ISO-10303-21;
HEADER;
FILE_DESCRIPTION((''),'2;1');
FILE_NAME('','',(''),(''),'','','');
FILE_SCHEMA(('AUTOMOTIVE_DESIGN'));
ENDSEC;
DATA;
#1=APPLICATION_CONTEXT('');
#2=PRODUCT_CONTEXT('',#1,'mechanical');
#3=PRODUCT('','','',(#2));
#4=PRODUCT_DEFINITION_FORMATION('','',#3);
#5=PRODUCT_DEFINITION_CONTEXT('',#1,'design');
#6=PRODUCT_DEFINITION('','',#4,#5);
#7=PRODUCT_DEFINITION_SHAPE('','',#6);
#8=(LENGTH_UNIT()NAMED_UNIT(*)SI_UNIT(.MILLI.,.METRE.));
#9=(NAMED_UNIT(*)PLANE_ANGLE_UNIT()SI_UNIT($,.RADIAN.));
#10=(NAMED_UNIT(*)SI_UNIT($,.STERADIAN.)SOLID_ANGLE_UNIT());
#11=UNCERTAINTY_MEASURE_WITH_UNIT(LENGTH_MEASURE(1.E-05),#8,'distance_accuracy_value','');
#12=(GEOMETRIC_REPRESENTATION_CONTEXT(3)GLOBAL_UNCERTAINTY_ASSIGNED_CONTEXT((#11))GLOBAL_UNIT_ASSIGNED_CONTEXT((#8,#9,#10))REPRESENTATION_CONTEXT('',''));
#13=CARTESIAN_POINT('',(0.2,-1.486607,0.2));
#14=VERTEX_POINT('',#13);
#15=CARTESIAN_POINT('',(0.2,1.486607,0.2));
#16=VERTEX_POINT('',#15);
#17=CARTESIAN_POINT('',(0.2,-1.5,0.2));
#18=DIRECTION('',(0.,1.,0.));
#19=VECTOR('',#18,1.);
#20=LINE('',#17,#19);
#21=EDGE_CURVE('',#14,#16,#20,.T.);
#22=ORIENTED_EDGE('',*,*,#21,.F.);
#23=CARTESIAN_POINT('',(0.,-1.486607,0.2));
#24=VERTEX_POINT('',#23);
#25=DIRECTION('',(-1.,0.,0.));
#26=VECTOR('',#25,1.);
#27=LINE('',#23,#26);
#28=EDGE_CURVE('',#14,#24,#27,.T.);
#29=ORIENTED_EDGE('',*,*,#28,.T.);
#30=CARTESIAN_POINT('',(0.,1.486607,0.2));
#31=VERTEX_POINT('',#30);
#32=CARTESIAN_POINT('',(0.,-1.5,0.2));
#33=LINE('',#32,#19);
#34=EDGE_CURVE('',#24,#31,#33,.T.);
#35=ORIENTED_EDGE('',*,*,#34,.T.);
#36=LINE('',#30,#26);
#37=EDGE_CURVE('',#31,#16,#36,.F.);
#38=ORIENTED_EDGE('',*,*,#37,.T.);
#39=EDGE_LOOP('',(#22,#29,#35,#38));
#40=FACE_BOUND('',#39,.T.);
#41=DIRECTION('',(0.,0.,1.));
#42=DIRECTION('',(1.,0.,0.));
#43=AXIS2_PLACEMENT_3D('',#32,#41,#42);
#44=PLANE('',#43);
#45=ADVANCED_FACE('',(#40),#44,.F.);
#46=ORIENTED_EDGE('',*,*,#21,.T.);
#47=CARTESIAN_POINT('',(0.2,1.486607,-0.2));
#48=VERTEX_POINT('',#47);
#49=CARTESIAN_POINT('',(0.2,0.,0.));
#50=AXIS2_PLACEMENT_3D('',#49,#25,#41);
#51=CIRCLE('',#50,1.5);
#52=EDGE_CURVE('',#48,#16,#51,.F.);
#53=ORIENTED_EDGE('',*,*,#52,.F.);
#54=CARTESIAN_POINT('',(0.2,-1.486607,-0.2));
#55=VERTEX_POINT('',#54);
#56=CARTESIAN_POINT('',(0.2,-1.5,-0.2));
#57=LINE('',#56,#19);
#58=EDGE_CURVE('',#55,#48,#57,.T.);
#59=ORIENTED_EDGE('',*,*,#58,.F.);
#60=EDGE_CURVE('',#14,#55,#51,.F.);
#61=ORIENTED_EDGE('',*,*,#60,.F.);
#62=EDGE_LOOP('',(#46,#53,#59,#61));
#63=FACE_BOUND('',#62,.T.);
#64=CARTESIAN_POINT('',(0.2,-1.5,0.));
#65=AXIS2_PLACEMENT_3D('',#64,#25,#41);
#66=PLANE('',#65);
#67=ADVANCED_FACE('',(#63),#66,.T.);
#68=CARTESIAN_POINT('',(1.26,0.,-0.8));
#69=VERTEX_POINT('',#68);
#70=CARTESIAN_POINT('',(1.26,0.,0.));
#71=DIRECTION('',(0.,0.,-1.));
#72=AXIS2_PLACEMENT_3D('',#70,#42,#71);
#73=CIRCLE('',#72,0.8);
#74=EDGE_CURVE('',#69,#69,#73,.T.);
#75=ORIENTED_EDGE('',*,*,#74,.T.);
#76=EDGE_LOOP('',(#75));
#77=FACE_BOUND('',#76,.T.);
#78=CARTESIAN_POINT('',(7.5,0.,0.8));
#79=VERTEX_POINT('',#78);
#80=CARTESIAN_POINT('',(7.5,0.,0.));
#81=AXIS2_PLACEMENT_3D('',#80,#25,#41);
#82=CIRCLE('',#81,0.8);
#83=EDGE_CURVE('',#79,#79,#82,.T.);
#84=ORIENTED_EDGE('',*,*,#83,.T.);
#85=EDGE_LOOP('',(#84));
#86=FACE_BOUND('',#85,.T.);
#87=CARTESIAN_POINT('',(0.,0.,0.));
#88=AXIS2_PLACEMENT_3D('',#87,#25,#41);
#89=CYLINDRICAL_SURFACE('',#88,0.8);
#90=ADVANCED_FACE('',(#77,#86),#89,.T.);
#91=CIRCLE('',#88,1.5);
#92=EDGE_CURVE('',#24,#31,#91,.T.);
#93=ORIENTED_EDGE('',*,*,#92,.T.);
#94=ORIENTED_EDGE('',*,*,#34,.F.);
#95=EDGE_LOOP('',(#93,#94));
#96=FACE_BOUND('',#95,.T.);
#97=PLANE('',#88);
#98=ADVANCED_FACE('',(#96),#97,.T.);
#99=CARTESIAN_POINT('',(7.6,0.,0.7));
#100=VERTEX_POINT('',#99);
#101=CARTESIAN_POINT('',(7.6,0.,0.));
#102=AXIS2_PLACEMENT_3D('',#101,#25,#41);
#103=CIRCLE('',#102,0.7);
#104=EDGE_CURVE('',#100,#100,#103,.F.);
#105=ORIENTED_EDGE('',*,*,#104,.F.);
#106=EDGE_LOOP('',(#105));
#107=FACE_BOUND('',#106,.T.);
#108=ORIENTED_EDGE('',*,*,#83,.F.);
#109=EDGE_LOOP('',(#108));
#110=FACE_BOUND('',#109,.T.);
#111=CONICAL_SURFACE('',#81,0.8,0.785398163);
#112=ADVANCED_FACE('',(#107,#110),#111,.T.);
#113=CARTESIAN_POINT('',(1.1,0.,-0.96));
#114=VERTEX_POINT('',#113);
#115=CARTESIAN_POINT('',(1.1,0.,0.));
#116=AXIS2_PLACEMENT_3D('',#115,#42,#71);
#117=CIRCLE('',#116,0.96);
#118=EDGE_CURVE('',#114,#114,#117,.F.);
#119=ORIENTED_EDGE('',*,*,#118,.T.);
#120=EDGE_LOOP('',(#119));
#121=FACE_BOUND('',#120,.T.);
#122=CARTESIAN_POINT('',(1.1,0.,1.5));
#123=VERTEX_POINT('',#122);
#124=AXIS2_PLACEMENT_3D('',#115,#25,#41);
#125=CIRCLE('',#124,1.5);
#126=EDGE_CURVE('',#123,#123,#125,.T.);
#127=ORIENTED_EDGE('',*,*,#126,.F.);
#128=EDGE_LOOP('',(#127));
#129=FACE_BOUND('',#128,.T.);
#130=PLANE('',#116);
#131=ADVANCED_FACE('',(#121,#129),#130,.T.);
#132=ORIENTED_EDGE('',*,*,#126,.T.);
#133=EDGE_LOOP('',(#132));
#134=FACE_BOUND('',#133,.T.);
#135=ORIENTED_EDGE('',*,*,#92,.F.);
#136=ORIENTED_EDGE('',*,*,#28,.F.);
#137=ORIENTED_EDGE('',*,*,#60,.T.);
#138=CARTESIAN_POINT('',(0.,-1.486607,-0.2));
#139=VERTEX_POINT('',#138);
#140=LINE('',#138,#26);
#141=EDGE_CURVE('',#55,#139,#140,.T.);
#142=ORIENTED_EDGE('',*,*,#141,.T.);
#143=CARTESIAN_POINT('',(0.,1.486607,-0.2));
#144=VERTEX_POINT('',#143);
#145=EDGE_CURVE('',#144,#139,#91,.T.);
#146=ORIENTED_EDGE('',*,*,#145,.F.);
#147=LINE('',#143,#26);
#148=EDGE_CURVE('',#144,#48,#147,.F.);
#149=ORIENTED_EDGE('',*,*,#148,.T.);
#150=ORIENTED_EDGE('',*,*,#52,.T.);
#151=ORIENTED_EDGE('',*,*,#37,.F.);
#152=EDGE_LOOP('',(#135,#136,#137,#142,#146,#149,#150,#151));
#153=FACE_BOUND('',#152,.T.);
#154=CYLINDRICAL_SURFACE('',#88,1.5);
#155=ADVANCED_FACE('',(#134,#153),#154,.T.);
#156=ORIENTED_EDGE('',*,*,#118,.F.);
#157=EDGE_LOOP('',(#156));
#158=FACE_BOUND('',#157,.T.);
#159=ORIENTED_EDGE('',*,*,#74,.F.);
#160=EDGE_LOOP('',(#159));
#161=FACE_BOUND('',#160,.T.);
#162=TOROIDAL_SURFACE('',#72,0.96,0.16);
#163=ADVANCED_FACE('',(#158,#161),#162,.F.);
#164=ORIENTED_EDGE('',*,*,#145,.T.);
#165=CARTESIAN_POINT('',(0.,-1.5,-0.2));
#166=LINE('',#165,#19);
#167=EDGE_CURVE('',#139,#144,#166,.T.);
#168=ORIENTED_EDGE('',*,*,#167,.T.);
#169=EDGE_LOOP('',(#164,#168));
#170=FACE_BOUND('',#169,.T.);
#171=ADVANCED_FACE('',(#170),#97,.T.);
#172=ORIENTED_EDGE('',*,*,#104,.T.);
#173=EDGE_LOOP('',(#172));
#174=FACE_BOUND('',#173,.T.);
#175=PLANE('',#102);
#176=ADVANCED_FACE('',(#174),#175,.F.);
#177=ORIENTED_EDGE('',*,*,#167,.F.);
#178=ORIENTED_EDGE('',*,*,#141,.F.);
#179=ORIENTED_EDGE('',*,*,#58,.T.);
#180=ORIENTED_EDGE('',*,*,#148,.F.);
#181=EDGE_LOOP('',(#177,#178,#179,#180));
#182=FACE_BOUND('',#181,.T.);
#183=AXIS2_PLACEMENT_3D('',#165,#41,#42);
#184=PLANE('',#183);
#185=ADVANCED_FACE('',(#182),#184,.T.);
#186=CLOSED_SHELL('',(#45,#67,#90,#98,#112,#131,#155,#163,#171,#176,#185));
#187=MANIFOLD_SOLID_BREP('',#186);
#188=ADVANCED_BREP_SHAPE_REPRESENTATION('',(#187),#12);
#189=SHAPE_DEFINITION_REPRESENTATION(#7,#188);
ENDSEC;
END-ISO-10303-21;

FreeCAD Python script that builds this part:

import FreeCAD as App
import Part
import Sketcher
Q = App.Units.Quantity


def edges_at(feature, points):
    """Names of the edges that pass closest to the given points."""
    edges = feature.Shape.Edges
    near = lambda p: min(range(len(edges)), key=lambda i: edges[i].distToShape(Part.Vertex(*p))[0])
    return sorted({f"Edge{near(p) + 1}" for p in points})

doc = App.newDocument("Part")
params = doc.addObject("Spreadsheet::Sheet", "Params")
for row, (alias, value) in enumerate([
    ("sketch1_width", "7.6 mm"),
    ("sketch1_width2", "6.5 mm"),
    ("sketch1_height", "1.5 mm"),
    ("sketch1_height2", "0.8 mm"),
    ("revolution_angle", "360 deg"),
    ("chamfer_size", "0.1 mm"),
    ("fillet_radius", "0.16 mm"),
    ("sketch2_width", "0.2 mm"),
    ("sketch2_height", "0.4 mm"),
], start=1):
    params.set(f"A{row}", alias)
    params.set(f"B{row}", "=" + value)
    params.setAlias(f"B{row}", alias)

body = doc.addObject("PartDesign::Body", "Body")

sketch1 = doc.addObject("Sketcher::SketchObject", "Sketch")
body.addObject(sketch1)
sketch1.AttachmentSupport = (doc.XY_Plane, [""])
sketch1.MapMode = "FlatFace"
sketch1.addGeometry(Part.LineSegment(App.Vector(0, 1.5, 0), App.Vector(0, 0, 0)), False)
sketch1.addGeometry(Part.LineSegment(App.Vector(0, 0, 0), App.Vector(7.6, 0, 0)), False)
sketch1.addGeometry(Part.LineSegment(App.Vector(7.6, 0, 0), App.Vector(7.6, 0.8, 0)), False)
sketch1.addGeometry(Part.LineSegment(App.Vector(7.6, 0.8, 0), App.Vector(1.1, 0.8, 0)), False)
sketch1.addGeometry(Part.LineSegment(App.Vector(1.1, 0.8, 0), App.Vector(1.1, 1.5, 0)), False)
sketch1.addGeometry(Part.LineSegment(App.Vector(1.1, 1.5, 0), App.Vector(0, 1.5, 0)), False)
sketch1.addConstraint(Sketcher.Constraint("Coincident", 0, 2, 1, 1))
sketch1.addConstraint(Sketcher.Constraint("Coincident", 1, 2, 2, 1))
sketch1.addConstraint(Sketcher.Constraint("Coincident", 2, 2, 3, 1))
sketch1.addConstraint(Sketcher.Constraint("Coincident", 3, 2, 4, 1))
sketch1.addConstraint(Sketcher.Constraint("Coincident", 4, 2, 5, 1))
sketch1.addConstraint(Sketcher.Constraint("Coincident", 5, 2, 0, 1))
sketch1.addConstraint(Sketcher.Constraint("Vertical", 0))
sketch1.addConstraint(Sketcher.Constraint("Horizontal", 1))
sketch1.addConstraint(Sketcher.Constraint("Vertical", 2))
sketch1.addConstraint(Sketcher.Constraint("Horizontal", 3))
sketch1.addConstraint(Sketcher.Constraint("Vertical", 4))
sketch1.addConstraint(Sketcher.Constraint("Horizontal", 5))
sketch1.addConstraint(Sketcher.Constraint("Coincident", 0, 2, -1, 1))
sketch1.addConstraint(Sketcher.Constraint("DistanceX", 1, 1, 1, 2, Q("7.6 mm")))
sketch1.addConstraint(Sketcher.Constraint("DistanceX", 3, 2, 3, 1, Q("6.5 mm")))
sketch1.addConstraint(Sketcher.Constraint("DistanceY", 0, 2, 0, 1, Q("1.5 mm")))
sketch1.addConstraint(Sketcher.Constraint("DistanceY", 2, 1, 2, 2, Q("0.8 mm")))
sketch1.setExpression("Constraints[13]", "Params.sketch1_width")
sketch1.setExpression("Constraints[14]", "Params.sketch1_width2")
sketch1.setExpression("Constraints[15]", "Params.sketch1_height")
sketch1.setExpression("Constraints[16]", "Params.sketch1_height2")
revolution = doc.addObject("PartDesign::Revolution", "Revolution")
body.addObject(revolution)
revolution.Profile = sketch1
revolution.ReferenceAxis = (sketch1, ["H_Axis"])
revolution.setExpression("Angle", "Params.revolution_angle")
doc.recompute()

chamfer = doc.addObject("PartDesign::Chamfer", "Chamfer")
body.addObject(chamfer)
chamfer.Base = (revolution, edges_at(revolution, [(7.6, 0, -0.8)]))
chamfer.setExpression("Size", "Params.chamfer_size")
doc.recompute()

fillet = doc.addObject("PartDesign::Fillet", "Fillet")
body.addObject(fillet)
fillet.Base = (chamfer, edges_at(chamfer, [(1.1, 0, -0.8)]))
fillet.setExpression("Radius", "Params.fillet_radius")

sketch2 = doc.addObject("Sketcher::SketchObject", "Sketch001")
body.addObject(sketch2)
sketch2.AttachmentSupport = (doc.XZ_Plane, [""])
sketch2.MapMode = "FlatFace"
sketch2.addGeometry(Part.LineSegment(App.Vector(0, 0.2, 0), App.Vector(0.2, 0.2, 0)), False)
sketch2.addGeometry(Part.LineSegment(App.Vector(0.2, 0.2, 0), App.Vector(0.2, -0.2, 0)), False)
sketch2.addGeometry(Part.LineSegment(App.Vector(0.2, -0.2, 0), App.Vector(0, -0.2, 0)), False)
sketch2.addGeometry(Part.LineSegment(App.Vector(0, -0.2, 0), App.Vector(0, 0.2, 0)), False)
sketch2.addConstraint(Sketcher.Constraint("Coincident", 0, 2, 1, 1))
sketch2.addConstraint(Sketcher.Constraint("Coincident", 1, 2, 2, 1))
sketch2.addConstraint(Sketcher.Constraint("Coincident", 2, 2, 3, 1))
sketch2.addConstraint(Sketcher.Constraint("Coincident", 3, 2, 0, 1))
sketch2.addConstraint(Sketcher.Constraint("Horizontal", 0))
sketch2.addConstraint(Sketcher.Constraint("Vertical", 1))
sketch2.addConstraint(Sketcher.Constraint("Horizontal", 2))
sketch2.addConstraint(Sketcher.Constraint("Vertical", 3))
sketch2.addConstraint(Sketcher.Constraint("Symmetric", 2, 2, 3, 2, -1, 1))
sketch2.addConstraint(Sketcher.Constraint("DistanceX", 0, 1, 0, 2, Q("0.2 mm")))
sketch2.addConstraint(Sketcher.Constraint("DistanceY", 1, 2, 1, 1, Q("0.4 mm")))
sketch2.setExpression("Constraints[9]", "Params.sketch2_width")
sketch2.setExpression("Constraints[10]", "Params.sketch2_height")
pocket1 = doc.addObject("PartDesign::Pocket", "Pocket")
body.addObject(pocket1)
pocket1.Profile = sketch2
pocket1.Type = "ThroughAll"
pocket1.Midplane = True

doc.recompute()
